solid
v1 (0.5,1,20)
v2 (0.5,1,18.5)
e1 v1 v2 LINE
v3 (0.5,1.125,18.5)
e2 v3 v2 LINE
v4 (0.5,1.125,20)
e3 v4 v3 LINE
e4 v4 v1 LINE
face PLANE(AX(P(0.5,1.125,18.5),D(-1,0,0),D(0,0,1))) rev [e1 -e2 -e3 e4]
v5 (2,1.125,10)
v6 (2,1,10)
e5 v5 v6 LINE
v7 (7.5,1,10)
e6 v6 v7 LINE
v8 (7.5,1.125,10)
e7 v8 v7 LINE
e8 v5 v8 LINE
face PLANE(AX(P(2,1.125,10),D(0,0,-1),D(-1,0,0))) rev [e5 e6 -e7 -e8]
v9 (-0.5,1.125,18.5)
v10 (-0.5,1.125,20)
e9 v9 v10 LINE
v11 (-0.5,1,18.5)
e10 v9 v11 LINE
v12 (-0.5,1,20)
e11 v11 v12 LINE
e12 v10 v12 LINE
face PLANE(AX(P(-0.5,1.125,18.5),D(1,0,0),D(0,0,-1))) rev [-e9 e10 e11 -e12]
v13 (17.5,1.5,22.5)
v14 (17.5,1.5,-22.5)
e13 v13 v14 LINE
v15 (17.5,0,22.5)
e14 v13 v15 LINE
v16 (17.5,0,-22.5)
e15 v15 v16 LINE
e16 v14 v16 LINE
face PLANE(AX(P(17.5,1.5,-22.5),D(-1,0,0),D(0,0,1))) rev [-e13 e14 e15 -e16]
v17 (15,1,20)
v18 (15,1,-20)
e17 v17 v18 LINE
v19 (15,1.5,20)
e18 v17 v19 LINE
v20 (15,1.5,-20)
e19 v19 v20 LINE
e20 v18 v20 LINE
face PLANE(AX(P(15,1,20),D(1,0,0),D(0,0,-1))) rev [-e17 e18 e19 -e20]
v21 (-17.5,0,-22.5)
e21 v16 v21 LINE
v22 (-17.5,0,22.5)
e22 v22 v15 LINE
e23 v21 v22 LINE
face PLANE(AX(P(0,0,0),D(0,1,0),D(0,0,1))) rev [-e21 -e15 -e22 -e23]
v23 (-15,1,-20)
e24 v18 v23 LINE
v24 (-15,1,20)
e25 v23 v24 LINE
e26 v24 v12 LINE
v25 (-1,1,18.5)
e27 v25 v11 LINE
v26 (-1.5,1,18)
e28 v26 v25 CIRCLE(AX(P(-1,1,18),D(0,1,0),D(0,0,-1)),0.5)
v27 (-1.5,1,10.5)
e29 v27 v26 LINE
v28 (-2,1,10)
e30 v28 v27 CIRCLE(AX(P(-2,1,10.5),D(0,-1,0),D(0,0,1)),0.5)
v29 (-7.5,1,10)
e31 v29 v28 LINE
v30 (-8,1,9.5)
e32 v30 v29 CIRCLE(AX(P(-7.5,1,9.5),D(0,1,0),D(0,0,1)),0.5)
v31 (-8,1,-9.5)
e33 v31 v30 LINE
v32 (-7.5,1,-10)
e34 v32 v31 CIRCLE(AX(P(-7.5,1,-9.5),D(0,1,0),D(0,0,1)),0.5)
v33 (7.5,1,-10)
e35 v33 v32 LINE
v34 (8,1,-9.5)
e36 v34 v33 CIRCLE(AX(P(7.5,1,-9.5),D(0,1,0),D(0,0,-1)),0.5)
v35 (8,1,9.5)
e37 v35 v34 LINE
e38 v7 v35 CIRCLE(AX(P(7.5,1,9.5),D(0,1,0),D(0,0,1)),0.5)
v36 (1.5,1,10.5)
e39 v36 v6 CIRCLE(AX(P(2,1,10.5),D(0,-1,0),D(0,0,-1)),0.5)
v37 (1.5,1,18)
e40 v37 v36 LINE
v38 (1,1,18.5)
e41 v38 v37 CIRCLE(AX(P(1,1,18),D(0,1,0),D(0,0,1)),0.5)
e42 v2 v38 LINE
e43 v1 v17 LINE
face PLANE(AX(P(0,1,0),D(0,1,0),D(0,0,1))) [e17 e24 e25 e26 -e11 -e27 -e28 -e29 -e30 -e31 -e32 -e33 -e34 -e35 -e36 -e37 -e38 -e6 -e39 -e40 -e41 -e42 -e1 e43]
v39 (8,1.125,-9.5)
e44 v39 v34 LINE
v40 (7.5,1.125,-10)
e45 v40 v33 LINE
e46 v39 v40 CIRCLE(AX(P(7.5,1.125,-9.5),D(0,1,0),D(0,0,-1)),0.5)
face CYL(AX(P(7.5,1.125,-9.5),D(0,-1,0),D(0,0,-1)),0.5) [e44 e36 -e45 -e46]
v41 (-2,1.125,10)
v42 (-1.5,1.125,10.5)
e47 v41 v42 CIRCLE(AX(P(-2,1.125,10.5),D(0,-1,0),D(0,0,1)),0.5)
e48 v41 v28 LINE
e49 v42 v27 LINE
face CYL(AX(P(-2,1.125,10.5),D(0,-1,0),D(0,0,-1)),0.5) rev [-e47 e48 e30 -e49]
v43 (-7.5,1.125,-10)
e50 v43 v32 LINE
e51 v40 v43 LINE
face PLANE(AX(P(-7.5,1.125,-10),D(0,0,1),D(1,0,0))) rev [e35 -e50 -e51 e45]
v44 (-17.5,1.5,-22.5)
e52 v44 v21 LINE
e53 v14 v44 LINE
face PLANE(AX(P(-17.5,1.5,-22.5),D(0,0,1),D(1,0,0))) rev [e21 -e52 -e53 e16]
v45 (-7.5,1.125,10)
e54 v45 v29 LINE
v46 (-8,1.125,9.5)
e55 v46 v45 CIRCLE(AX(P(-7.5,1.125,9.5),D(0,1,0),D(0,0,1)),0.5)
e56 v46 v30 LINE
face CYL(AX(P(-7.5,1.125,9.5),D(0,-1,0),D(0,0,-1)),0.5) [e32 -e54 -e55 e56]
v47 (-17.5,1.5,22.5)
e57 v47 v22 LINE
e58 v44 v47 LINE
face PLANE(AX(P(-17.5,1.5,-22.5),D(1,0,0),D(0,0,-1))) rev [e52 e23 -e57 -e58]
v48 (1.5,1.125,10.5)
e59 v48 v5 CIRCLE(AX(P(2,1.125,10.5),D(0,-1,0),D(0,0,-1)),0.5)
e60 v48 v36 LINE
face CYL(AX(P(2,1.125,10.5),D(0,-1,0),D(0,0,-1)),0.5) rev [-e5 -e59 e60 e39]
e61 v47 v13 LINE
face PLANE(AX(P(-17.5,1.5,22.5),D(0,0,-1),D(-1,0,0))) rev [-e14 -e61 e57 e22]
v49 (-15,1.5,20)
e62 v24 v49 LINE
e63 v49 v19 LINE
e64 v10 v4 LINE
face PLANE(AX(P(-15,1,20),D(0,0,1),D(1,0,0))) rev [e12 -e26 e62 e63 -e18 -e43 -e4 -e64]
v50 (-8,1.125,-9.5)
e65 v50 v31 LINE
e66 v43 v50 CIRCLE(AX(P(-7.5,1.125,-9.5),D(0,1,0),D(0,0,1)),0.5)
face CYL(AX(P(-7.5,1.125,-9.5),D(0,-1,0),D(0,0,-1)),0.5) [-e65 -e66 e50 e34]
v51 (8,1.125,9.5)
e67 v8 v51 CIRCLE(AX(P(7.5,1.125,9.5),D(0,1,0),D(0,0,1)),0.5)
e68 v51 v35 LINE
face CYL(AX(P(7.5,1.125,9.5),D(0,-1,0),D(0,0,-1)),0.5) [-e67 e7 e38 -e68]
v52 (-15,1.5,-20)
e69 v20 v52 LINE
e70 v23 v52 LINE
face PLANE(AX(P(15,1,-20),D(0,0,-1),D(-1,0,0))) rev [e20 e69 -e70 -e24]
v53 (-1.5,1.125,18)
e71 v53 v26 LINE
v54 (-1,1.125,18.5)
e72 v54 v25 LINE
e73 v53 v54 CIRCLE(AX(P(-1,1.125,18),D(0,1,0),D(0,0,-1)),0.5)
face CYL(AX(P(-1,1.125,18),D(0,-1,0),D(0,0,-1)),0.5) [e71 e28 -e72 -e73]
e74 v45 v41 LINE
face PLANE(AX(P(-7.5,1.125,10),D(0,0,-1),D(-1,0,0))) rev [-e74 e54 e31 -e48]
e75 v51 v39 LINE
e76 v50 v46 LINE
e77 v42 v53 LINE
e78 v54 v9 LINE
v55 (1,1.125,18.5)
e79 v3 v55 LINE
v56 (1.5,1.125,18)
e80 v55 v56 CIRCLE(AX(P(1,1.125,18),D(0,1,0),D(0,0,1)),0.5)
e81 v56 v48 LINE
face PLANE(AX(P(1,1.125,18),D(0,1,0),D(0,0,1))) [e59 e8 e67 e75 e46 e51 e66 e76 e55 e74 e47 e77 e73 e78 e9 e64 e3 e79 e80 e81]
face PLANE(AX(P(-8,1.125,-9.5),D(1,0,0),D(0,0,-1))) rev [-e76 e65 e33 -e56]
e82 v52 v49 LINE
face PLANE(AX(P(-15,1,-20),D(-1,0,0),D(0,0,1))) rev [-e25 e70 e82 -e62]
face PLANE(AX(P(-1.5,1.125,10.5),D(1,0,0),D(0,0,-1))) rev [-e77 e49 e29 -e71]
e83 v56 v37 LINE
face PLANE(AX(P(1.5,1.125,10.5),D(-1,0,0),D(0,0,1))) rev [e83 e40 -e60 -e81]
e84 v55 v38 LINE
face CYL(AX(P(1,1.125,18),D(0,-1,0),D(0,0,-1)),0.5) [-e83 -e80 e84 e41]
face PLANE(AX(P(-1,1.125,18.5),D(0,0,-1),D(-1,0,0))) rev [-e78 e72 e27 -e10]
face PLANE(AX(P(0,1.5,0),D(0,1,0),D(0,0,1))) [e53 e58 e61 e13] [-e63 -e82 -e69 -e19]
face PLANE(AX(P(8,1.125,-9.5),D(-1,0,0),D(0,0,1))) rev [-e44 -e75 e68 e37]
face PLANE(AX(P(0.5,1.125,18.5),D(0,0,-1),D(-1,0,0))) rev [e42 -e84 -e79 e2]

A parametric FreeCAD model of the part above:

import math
import FreeCAD as App
import Part
import Sketcher
from FreeCAD import Vector
Q = App.Units.Quantity


def add_polygon(sketch, points):
    """Adds a closed chain of lines whose ends are joined by coincident constraints."""
    first, n = sketch.GeometryCount, len(points)
    for a, b in zip(points, points[1:] + points[:1]):
        sketch.addGeometry(Part.LineSegment(App.Vector(*a, 0), App.Vector(*b, 0)), False)
    for i in range(n):
        sketch.addConstraint(Sketcher.Constraint("Coincident", first + i, 2, first + (i + 1) % n, 1))

doc = App.newDocument("Part")
body = doc.addObject("PartDesign::Body", "Body")

# Sketch on XZ plane
sketch1 = body.newObject("Sketcher::SketchObject", "Sketch")
sketch1.AttachmentSupport = (doc.getObject("XZ_Plane"), [""])
sketch1.MapMode = "FlatFace"
add_polygon(sketch1, [(-17.5, -22.5), (-17.5, 22.5), (17.5, 22.5), (17.5, -22.5)])  # lines 0-3
sketch1.addConstraint([
    Sketcher.Constraint("Vertical", 0),
    Sketcher.Constraint("Horizontal", 1),
    Sketcher.Constraint("Vertical", 2),
    Sketcher.Constraint("Horizontal", 3),
    Sketcher.Constraint("Symmetric", 0, 2, 2, 2, -1, 1),
    Sketcher.Constraint("DistanceX", 1, 1, 1, 2, Q("35 mm")),
    Sketcher.Constraint("DistanceY", 0, 1, 0, 2, Q("45 mm")),
])
pad1 = body.newObject("PartDesign::Pad", "Pad")
pad1.Profile = sketch1
pad1.Length = 1.5
pad1.Reversed = True

# Sketch on XZ plane
sketch2 = body.newObject("Sketcher::SketchObject", "Sketch001")
sketch2.AttachmentSupport = (doc.getObject("XZ_Plane"), [""])
sketch2.MapMode = "FlatFace"
sketch2.AttachmentOffset = App.Placement(Vector(0, 0, -1.5), App.Rotation())
add_polygon(sketch2, [(-15, -20), (-15, 20), (15, 20), (15, -20)])  # lines 0-3
sketch2.addConstraint([
    Sketcher.Constraint("Vertical", 0),
    Sketcher.Constraint("Horizontal", 1),
    Sketcher.Constraint("Vertical", 2),
    Sketcher.Constraint("Horizontal", 3),
    Sketcher.Constraint("Symmetric", 0, 2, 2, 2, -1, 1),
    Sketcher.Constraint("DistanceX", 1, 1, 1, 2, Q("30 mm")),
    Sketcher.Constraint("DistanceY", 0, 1, 0, 2, Q("40 mm")),
])
pocket1 = body.newObject("PartDesign::Pocket", "Pocket")
pocket1.Profile = sketch2
pocket1.Length = 0.5
pocket1.Reversed = True

# Sketch on XZ plane
sketch3 = body.newObject("Sketcher::SketchObject", "Sketch002")
sketch3.AttachmentSupport = (doc.getObject("XZ_Plane"), [""])
sketch3.MapMode = "FlatFace"
sketch3.AttachmentOffset = App.Placement(Vector(0, 0, -1), App.Rotation())
sketch3.addGeometry([
    Part.LineSegment(Vector(-1.5, 10.5, 0), Vector(-1.5, 18, 0)),  # 0
    Part.ArcOfCircle(Part.Circle(Vector(-1, 18, 0), Vector(0, 0, 1), 0.5), math.radians(90), math.radians(180)),  # 1
    Part.LineSegment(Vector(-1, 18.5, 0), Vector(-0.5, 18.5, 0)),  # 2
    Part.LineSegment(Vector(-0.5, 18.5, 0), Vector(-0.5, 20, 0)),  # 3
    Part.LineSegment(Vector(-0.5, 20, 0), Vector(0.5, 20, 0)),  # 4
    Part.LineSegment(Vector(0.5, 20, 0), Vector(0.5, 18.5, 0)),  # 5
    Part.LineSegment(Vector(0.5, 18.5, 0), Vector(1, 18.5, 0)),  # 6
    Part.ArcOfCircle(Part.Circle(Vector(1, 18, 0), Vector(0, 0, 1), 0.5), math.radians(0), math.radians(90)),  # 7
    Part.LineSegment(Vector(1.5, 18, 0), Vector(1.5, 10.5, 0)),  # 8
    Part.ArcOfCircle(Part.Circle(Vector(2, 10.5, 0), Vector(0, 0, 1), 0.5), math.radians(180), math.radians(270)),  # 9
    Part.LineSegment(Vector(2, 10, 0), Vector(7.5, 10, 0)),  # 10
    Part.ArcOfCircle(Part.Circle(Vector(7.5, 9.5, 0), Vector(0, 0, 1), 0.5), math.radians(0), math.radians(90)),  # 11
    Part.LineSegment(Vector(8, 9.5, 0), Vector(8, -9.5, 0)),  # 12
    Part.ArcOfCircle(Part.Circle(Vector(7.5, -9.5, 0), Vector(0, 0, 1), 0.5), math.radians(-90), math.radians(0)),  # 13
    Part.LineSegment(Vector(7.5, -10, 0), Vector(-7.5, -10, 0)),  # 14
    Part.ArcOfCircle(Part.Circle(Vector(-7.5, -9.5, 0), Vector(0, 0, 1), 0.5), math.radians(180), math.radians(270)),  # 15
    Part.LineSegment(Vector(-8, -9.5, 0), Vector(-8, 9.5, 0)),  # 16
    Part.ArcOfCircle(Part.Circle(Vector(-7.5, 9.5, 0), Vector(0, 0, 1), 0.5), math.radians(90), math.radians(180)),  # 17
    Part.LineSegment(Vector(-7.5, 10, 0), Vector(-2, 10, 0)),  # 18
    Part.ArcOfCircle(Part.Circle(Vector(-2, 10.5, 0), Vector(0, 0, 1), 0.5), math.radians(-90), math.radians(0)),  # 19
], False)
sketch3.addConstraint([
    Sketcher.Constraint("Tangent", 0, 2, 1, 2),
    Sketcher.Constraint("Tangent", 1, 1, 2, 1),
    Sketcher.Constraint("Coincident", 2, 2, 3, 1),
    Sketcher.Constraint("Coincident", 3, 2, 4, 1),
    Sketcher.Constraint("Coincident", 4, 2, 5, 1),
    Sketcher.Constraint("Coincident", 5, 2, 6, 1),
    Sketcher.Constraint("Tangent", 6, 2, 7, 2),
    Sketcher.Constraint("Tangent", 7, 1, 8, 1),
    Sketcher.Constraint("Tangent", 8, 2, 9, 1),
    Sketcher.Constraint("Tangent", 9, 2, 10, 1),
    Sketcher.Constraint("Tangent", 10, 2, 11, 2),
    Sketcher.Constraint("Tangent", 11, 1, 12, 1),
    Sketcher.Constraint("Tangent", 12, 2, 13, 2),
    Sketcher.Constraint("Tangent", 13, 1, 14, 1),
    Sketcher.Constraint("Tangent", 14, 2, 15, 2),
    Sketcher.Constraint("Tangent", 15, 1, 16, 1),
    Sketcher.Constraint("Tangent", 16, 2, 17, 2),
    Sketcher.Constraint("Tangent", 17, 1, 18, 1),
    Sketcher.Constraint("Tangent", 18, 2, 19, 1),
    Sketcher.Constraint("Tangent", 19, 2, 0, 1),
    Sketcher.Constraint("Vertical", 0),
    Sketcher.Constraint("Horizontal", 2),
    Sketcher.Constraint("Vertical", 3),
    Sketcher.Constraint("Horizontal", 4),
    Sketcher.Constraint("Vertical", 5),
    Sketcher.Constraint("Horizontal", 6),
    Sketcher.Constraint("Vertical", 8),
    Sketcher.Constraint("Horizontal", 10),
    Sketcher.Constraint("Vertical", 12),
    Sketcher.Constraint("Horizontal", 14),
    Sketcher.Constraint("Vertical", 16),
    Sketcher.Constraint("Horizontal", 18),
    Sketcher.Constraint("Equal", 1, 7),
    Sketcher.Constraint("Equal", 7, 9),
    Sketcher.Constraint("Equal", 9, 11),
    Sketcher.Constraint("Equal", 11, 13),
    Sketcher.Constraint("Equal", 13, 15),
    Sketcher.Constraint("Equal", 15, 17),
    Sketcher.Constraint("Equal", 17, 19),
    Sketcher.Constraint("Symmetric", 11, 3, 15, 3, -1, 1),
    Sketcher.Constraint("Symmetric", 1, 3, 7, 3, -2),
    Sketcher.Constraint("Horizontal", 11, 3, 17, 3),
    Sketcher.Constraint("Equal", 2, 6),
    Sketcher.Constraint("Radius", 1, Q("0.5 mm")),
    Sketcher.Constraint("DistanceX", 4, 1, 4, 2, Q("1 mm")),
    Sketcher.Constraint("DistanceX", 14, 2, 14, 1, Q("15 mm")),
    Sketcher.Constraint("DistanceY", 12, 2, 12, 1, Q("19 mm")),
    Sketcher.Constraint("DistanceX", 2, 1, 2, 2, Q("0.5 mm")),
    Sketcher.Constraint("DistanceY", 0, 1, 0, 2, Q("7.5 mm")),
    Sketcher.Constraint("DistanceY", 3, 1, 3, 2, Q("1.5 mm")),
])
pad2 = body.newObject("PartDesign::Pad", "Pad001")
pad2.Profile = sketch3
pad2.Length = 0.125
pad2.Reversed = True

doc.recompute()
